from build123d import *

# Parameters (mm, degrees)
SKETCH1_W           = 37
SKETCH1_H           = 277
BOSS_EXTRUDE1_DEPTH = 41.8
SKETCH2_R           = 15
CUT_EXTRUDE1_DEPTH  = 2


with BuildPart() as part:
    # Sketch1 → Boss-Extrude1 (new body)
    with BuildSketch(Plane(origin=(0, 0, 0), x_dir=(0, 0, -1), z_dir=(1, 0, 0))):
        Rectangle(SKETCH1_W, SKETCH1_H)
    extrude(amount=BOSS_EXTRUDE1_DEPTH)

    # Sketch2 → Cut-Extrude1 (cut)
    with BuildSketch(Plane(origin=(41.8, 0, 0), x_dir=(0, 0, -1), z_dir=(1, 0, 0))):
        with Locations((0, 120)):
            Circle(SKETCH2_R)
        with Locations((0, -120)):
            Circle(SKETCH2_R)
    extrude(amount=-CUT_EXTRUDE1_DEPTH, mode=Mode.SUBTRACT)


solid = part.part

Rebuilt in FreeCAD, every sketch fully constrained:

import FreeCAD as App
import Part
import Sketcher
Q = App.Units.Quantity

doc = App.newDocument("Part")
body = doc.addObject("PartDesign::Body", "Body")

# Sketch on YZ plane
sketch1 = doc.addObject("Sketcher::SketchObject", "Sketch")
body.addObject(sketch1)
sketch1.AttachmentSupport = (doc.YZ_Plane, [""])
sketch1.MapMode = "FlatFace"
sketch1.addGeometry([
    Part.LineSegment(App.Vector(138, 18, 0), App.Vector(-138, 18, 0)),
    Part.LineSegment(App.Vector(-138, 18, 0), App.Vector(-138, -18, 0)),
    Part.LineSegment(App.Vector(-138, -18, 0), App.Vector(138, -18, 0)),
    Part.LineSegment(App.Vector(138, -18, 0), App.Vector(138, 18, 0)),
], False)
sketch1.addConstraint([
    Sketcher.Constraint("Coincident", 0, 2, 1, 1),
    Sketcher.Constraint("Coincident", 1, 2, 2, 1),
    Sketcher.Constraint("Coincident", 2, 2, 3, 1),
    Sketcher.Constraint("Coincident", 3, 2, 0, 1),
    Sketcher.Constraint("Horizontal", 0),
    Sketcher.Constraint("Vertical", 1),
    Sketcher.Constraint("Horizontal", 2),
    Sketcher.Constraint("Vertical", 3),
    Sketcher.Constraint("Symmetric", 0, 2, 2, 2, -1, 1),
    Sketcher.Constraint("DistanceX", 0, 2, 0, 1, Q("277 mm")),
    Sketcher.Constraint("DistanceY", 1, 2, 1, 1, Q("37 mm")),
])
pad1 = doc.addObject("PartDesign::Pad", "Pad")
body.addObject(pad1)
pad1.Profile = sketch1
pad1.Length = 41.8

# Sketch on YZ plane
sketch2 = doc.addObject("Sketcher::SketchObject", "Sketch001")
body.addObject(sketch2)
sketch2.AttachmentSupport = (doc.YZ_Plane, [""])
sketch2.MapMode = "FlatFace"
sketch2.AttachmentOffset = App.Placement(App.Vector(0, 0, 41.8), App.Rotation())
sketch2.addGeometry([
    Part.Circle(App.Vector(120, 0, 0), App.Vector(0, 0, 1), 15),
    Part.Circle(App.Vector(-120, 0, 0), App.Vector(0, 0, 1), 15),
], False)
sketch2.addConstraint([
    Sketcher.Constraint("Equal", 0, 1),
    Sketcher.Constraint("Symmetric", 0, 3, 1, 3, -1, 1),
    Sketcher.Constraint("PointOnObject", 0, 3, -1),
    Sketcher.Constraint("Diameter", 0, Q("30 mm")),
    Sketcher.Constraint("DistanceX", -1, 1, 0, 3, Q("120 mm")),
])
pocket1 = doc.addObject("PartDesign::Pocket", "Pocket")
body.addObject(pocket1)
pocket1.Profile = sketch2
pocket1.Length = 2

doc.recompute()
